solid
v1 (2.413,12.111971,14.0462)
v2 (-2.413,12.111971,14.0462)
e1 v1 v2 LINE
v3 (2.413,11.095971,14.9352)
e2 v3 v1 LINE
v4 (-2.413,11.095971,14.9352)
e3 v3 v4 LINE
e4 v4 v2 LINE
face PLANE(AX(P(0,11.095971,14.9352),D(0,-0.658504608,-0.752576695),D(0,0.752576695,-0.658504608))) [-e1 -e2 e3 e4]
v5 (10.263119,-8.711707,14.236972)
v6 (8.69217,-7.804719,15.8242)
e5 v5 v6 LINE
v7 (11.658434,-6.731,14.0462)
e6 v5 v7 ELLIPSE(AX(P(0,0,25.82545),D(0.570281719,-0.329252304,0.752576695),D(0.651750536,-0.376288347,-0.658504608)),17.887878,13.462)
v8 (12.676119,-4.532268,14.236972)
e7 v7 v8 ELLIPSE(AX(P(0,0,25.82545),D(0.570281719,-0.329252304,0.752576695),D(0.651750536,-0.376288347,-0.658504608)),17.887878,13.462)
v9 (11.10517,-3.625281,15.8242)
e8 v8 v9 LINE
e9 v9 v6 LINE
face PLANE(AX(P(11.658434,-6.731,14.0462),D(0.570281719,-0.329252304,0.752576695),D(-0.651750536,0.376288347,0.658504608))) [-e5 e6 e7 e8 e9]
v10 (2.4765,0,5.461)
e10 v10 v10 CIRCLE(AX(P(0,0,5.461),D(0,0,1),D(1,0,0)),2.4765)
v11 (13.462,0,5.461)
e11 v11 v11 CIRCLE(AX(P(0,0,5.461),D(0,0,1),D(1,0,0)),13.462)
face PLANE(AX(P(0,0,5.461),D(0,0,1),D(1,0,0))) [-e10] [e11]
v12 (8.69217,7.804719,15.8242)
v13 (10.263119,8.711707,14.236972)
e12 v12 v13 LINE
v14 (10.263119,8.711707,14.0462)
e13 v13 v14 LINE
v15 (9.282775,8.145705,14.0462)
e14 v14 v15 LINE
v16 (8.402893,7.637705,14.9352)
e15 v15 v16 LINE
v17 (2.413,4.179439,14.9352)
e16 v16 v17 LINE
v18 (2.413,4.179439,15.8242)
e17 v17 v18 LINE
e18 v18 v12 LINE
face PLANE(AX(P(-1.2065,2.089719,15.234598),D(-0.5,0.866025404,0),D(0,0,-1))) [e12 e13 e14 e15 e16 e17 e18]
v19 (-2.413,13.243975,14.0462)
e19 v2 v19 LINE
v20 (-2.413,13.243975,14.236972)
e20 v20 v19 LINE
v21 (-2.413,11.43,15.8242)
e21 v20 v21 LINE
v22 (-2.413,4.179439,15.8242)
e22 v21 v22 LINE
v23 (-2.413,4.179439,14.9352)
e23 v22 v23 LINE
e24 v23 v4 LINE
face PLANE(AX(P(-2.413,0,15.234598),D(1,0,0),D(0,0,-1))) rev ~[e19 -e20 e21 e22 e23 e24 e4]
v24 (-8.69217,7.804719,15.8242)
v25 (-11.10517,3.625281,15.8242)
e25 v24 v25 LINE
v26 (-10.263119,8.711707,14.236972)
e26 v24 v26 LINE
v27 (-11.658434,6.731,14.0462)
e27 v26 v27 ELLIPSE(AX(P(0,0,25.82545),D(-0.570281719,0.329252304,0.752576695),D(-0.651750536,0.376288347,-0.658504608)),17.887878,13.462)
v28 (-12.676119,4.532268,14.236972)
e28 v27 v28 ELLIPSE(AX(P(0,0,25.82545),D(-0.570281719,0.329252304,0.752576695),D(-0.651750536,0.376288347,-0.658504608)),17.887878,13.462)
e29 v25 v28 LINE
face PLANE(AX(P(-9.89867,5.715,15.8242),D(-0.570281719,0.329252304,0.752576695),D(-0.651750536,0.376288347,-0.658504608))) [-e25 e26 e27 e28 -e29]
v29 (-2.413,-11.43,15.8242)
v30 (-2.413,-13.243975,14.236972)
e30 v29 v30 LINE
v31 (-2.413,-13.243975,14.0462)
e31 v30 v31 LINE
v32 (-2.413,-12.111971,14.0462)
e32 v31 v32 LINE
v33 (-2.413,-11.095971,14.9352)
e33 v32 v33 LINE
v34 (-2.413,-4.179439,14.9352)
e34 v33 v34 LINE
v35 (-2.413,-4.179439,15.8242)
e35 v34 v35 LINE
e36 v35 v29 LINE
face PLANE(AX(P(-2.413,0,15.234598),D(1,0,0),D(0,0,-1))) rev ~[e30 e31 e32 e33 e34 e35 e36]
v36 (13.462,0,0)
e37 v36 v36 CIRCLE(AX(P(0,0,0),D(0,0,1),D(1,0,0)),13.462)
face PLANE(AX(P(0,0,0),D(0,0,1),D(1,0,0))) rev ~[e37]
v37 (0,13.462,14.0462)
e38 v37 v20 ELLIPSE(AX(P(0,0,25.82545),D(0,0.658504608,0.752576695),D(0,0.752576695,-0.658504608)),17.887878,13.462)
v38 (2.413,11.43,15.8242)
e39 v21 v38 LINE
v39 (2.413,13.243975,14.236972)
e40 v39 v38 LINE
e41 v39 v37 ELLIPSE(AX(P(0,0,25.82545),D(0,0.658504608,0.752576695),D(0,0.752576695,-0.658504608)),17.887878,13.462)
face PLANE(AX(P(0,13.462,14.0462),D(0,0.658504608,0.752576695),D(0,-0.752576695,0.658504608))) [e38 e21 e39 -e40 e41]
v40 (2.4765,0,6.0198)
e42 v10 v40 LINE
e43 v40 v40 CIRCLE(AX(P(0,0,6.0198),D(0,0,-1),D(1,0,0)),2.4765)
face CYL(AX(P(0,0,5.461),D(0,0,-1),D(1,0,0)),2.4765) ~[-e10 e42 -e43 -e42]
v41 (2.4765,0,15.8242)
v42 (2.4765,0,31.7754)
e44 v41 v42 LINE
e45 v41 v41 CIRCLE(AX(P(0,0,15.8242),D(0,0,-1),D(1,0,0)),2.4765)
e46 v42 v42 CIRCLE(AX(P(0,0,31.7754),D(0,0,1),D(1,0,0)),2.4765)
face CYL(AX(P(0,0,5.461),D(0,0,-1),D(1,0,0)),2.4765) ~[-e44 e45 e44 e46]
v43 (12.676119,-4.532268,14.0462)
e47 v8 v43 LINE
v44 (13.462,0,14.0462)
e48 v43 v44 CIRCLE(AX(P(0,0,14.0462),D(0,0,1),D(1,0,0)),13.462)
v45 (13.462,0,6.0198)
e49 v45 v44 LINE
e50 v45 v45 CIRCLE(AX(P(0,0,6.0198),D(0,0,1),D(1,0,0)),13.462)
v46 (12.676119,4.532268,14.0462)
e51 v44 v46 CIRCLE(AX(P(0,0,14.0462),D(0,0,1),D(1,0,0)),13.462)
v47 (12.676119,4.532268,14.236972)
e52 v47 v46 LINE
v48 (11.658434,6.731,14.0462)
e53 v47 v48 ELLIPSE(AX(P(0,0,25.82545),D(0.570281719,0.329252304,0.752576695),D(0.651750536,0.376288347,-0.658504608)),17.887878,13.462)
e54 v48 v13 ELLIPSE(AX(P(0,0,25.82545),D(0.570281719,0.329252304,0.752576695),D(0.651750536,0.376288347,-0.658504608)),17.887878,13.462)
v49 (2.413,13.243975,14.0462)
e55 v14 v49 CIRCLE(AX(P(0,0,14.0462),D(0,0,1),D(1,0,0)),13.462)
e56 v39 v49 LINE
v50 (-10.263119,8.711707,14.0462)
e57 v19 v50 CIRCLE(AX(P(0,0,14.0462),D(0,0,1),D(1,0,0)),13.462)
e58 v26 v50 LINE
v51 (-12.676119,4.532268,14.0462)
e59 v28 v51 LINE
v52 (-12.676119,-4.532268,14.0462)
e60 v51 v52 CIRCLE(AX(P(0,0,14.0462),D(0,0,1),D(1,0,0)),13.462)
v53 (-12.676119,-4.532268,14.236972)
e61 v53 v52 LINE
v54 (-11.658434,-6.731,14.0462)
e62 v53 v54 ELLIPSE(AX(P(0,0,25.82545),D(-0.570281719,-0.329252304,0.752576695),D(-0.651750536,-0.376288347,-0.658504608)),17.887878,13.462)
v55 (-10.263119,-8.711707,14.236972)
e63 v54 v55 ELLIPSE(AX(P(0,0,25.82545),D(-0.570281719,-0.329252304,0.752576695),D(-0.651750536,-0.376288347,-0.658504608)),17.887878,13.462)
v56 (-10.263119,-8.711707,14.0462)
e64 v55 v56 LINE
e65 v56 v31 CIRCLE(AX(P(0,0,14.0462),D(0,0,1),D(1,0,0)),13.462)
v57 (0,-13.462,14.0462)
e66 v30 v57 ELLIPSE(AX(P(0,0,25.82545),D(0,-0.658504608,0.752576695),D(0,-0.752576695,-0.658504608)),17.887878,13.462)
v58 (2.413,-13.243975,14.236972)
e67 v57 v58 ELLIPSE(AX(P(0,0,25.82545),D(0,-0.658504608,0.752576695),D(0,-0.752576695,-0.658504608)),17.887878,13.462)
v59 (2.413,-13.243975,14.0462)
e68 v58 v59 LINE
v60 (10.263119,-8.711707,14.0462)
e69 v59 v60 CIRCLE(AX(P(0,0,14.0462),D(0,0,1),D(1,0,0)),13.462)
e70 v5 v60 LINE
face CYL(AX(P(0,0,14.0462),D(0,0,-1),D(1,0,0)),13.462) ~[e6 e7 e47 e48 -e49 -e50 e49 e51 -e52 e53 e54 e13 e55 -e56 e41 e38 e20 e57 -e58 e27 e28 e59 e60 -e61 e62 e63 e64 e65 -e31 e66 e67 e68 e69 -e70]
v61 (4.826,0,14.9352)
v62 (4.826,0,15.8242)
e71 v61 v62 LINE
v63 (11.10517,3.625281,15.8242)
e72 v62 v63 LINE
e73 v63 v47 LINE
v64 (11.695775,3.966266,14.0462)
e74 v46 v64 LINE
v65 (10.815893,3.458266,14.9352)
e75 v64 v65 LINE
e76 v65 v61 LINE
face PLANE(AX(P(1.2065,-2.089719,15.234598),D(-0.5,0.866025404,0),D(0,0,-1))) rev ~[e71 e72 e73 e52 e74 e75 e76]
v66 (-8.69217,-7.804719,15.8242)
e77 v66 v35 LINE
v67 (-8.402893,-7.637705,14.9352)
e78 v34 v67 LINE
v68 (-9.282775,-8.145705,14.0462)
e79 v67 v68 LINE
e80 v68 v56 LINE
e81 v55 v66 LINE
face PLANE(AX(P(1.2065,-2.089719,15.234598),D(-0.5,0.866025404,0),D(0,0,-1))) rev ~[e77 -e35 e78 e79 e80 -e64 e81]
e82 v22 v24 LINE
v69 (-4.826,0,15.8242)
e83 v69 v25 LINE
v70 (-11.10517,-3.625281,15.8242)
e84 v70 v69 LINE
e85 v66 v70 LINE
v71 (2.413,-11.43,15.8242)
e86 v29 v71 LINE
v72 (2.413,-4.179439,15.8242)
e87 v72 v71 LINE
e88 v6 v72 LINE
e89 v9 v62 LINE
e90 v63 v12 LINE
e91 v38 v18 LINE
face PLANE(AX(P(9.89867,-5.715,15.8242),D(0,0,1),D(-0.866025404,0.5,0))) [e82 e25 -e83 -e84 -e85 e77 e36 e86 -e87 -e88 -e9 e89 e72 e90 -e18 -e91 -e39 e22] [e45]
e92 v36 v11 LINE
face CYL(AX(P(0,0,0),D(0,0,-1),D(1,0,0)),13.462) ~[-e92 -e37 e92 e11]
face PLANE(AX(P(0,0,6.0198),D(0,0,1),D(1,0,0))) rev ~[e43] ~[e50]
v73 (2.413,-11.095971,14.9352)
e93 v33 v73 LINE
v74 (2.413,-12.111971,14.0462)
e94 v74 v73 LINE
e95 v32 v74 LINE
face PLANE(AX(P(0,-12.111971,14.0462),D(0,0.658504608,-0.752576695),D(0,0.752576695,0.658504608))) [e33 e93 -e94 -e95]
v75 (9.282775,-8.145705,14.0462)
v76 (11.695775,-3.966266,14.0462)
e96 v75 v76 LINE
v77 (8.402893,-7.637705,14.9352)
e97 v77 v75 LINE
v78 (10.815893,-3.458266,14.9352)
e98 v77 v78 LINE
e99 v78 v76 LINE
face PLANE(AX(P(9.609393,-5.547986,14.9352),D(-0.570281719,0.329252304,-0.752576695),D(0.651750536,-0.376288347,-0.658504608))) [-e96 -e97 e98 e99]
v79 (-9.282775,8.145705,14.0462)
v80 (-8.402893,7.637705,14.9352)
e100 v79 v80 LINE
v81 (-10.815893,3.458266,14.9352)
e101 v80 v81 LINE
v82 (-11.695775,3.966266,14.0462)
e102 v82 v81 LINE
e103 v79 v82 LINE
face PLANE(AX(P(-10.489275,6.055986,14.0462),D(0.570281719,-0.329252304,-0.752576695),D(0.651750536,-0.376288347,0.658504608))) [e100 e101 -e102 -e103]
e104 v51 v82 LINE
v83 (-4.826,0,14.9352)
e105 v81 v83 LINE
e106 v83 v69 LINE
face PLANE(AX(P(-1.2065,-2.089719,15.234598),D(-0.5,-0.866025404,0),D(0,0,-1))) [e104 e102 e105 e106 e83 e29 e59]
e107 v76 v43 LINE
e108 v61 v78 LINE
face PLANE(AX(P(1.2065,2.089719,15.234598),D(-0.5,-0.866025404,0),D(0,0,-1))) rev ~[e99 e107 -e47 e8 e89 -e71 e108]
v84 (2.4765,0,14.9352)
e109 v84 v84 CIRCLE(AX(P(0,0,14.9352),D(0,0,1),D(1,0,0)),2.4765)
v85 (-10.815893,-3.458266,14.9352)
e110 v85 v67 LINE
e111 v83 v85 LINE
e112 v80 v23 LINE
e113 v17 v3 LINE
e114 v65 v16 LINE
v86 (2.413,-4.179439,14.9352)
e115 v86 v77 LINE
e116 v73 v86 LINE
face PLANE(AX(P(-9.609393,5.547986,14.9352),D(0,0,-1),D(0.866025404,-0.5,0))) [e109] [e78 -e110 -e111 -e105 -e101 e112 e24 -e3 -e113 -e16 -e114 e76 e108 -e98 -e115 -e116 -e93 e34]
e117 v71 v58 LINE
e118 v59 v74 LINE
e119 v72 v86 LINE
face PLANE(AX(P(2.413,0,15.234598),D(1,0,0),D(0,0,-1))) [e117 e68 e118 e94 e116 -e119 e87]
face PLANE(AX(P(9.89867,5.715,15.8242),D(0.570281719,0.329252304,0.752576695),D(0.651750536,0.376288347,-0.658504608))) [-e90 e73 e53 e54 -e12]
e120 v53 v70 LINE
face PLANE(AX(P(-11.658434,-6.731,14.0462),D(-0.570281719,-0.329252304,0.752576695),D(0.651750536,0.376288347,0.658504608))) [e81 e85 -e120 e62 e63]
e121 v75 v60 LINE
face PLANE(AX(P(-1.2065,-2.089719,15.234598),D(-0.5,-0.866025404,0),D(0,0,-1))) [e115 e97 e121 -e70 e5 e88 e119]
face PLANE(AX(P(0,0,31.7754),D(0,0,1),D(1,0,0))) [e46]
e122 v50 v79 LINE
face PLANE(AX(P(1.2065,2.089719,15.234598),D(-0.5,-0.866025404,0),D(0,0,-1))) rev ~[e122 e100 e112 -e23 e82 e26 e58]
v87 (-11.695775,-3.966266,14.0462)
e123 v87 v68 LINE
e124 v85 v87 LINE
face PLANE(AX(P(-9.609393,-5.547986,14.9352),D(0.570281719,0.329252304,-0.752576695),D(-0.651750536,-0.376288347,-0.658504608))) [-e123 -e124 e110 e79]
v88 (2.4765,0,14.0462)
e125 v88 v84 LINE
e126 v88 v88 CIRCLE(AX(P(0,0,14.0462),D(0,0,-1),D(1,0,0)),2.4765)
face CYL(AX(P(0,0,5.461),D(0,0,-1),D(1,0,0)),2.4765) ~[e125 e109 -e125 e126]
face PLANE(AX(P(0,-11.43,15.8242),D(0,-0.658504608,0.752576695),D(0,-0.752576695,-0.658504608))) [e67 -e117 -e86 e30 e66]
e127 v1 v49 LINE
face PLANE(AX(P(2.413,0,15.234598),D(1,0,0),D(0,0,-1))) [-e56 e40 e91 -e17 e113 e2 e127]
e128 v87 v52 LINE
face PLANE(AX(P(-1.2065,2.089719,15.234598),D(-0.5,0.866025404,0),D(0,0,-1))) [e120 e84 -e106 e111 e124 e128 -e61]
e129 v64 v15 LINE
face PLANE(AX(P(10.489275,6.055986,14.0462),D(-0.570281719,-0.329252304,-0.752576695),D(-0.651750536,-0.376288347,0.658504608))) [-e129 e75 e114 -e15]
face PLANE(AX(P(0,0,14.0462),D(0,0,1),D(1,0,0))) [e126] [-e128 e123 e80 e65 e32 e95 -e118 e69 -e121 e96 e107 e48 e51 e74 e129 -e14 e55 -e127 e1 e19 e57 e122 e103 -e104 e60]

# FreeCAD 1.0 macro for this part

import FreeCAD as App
import Part
import Sketcher
from FreeCAD import Vector
Q = App.Units.Quantity


def add_polygon(sketch, points):
    """Adds a closed chain of lines whose ends are joined by coincident constraints."""
    first, n = sketch.GeometryCount, len(points)
    for a, b in zip(points, points[1:] + points[:1]):
        sketch.addGeometry(Part.LineSegment(App.Vector(*a, 0), App.Vector(*b, 0)), False)
    for i in range(n):
        sketch.addConstraint(Sketcher.Constraint("Coincident", first + i, 2, first + (i + 1) % n, 1))

doc = App.newDocument("Part")
params = doc.addObject("Spreadsheet::Sheet", "Params")
for row, (alias, value) in enumerate([
    ("sketch1_diameter", "1.06 in"),
    ("pad1_length", "0.215 in"),
    ("sketch2_diameter", "0.195 in"),
    ("pad2_length", "1.036 in"),
    ("sketch3_diameter", "1.06 in"),
    ("pad3_length", "0.316 in"),
    ("sketch4_width", "0.9 in"),
    ("pad4_length", "0.19 in"),
    ("sketch5_diameter", "1.06 in"),
    ("pocket1_length", "0.190772 mm"),
], start=1):
    params.set(f"A{row}", alias)
    params.set(f"B{row}", "=" + value)
    params.setAlias(f"B{row}", alias)

body = doc.addObject("PartDesign::Body", "Body")

sketch1 = doc.addObject("Sketcher::SketchObject", "Sketch")
body.addObject(sketch1)
sketch1.AttachmentSupport = (doc.XY_Plane, [""])
sketch1.MapMode = "FlatFace"
sketch1.addGeometry(Part.Circle(Vector(0, 0, 0), Vector(0, 0, 1), 13.462), False)
sketch1.addConstraint([
    Sketcher.Constraint("Coincident", 0, 3, -1, 1),
    Sketcher.Constraint("Diameter", 0, Q("1.06 in")),
])
sketch1.setExpression("Constraints[1]", "Params.sketch1_diameter")
pad1 = doc.addObject("PartDesign::Pad", "Pad")
body.addObject(pad1)
pad1.Profile = sketch1
pad1.setExpression("Length", "Params.pad1_length")

sketch2 = doc.addObject("Sketcher::SketchObject", "Sketch001")
body.addObject(sketch2)
sketch2.AttachmentSupport = (doc.XY_Plane, [""])
sketch2.MapMode = "FlatFace"
sketch2.AttachmentOffset = App.Placement(Vector(0, 0, 0.215 * 25.4), App.Rotation())
sketch2.addGeometry(Part.Circle(Vector(0, 0, 0), Vector(0, 0, 1), 2.4765), False)
sketch2.addConstraint([
    Sketcher.Constraint("Coincident", 0, 3, -1, 1),
    Sketcher.Constraint("Diameter", 0, Q("0.195 in")),
])
sketch2.setExpression("Constraints[1]", "Params.sketch2_diameter")
pad2 = doc.addObject("PartDesign::Pad", "Pad001")
body.addObject(pad2)
pad2.Profile = sketch2
pad2.setExpression("Length", "Params.pad2_length")

sketch3 = doc.addObject("Sketcher::SketchObject", "Sketch002")
body.addObject(sketch3)
sketch3.AttachmentSupport = (doc.XY_Plane, [""])
sketch3.MapMode = "FlatFace"
sketch3.AttachmentOffset = App.Placement(Vector(0, 0, 0.237 * 25.4), App.Rotation())
sketch3.addGeometry(Part.Circle(Vector(0, 0, 0), Vector(0, 0, 1), 13.462), False)
sketch3.addConstraint([
    Sketcher.Constraint("Coincident", 0, 3, -1, 1),
    Sketcher.Constraint("Diameter", 0, Q("1.06 in")),
])
sketch3.setExpression("Constraints[1]", "Params.sketch3_diameter")
pad3 = doc.addObject("PartDesign::Pad", "Pad002")
body.addObject(pad3)
pad3.Profile = sketch3
pad3.setExpression("Length", "Params.pad3_length")

sketch4 = doc.addObject("Sketcher::SketchObject", "Sketch003")
body.addObject(sketch4)
sketch4.AttachmentSupport = (doc.YZ_Plane, [""])
sketch4.MapMode = "FlatFace"
add_polygon(sketch4, [(13.462, 14.0462), (11.43, 15.8242), (-11.43, 15.8242), (-13.462, 14.0462), (-12.111971, 14.0462), (-11.095971, 14.9352), (11.095971, 14.9352), (12.111971, 14.0462)])
sketch4.addConstraint([
    Sketcher.Constraint("Horizontal", 1),
    Sketcher.Constraint("Horizontal", 3),
    Sketcher.Constraint("Horizontal", 5),
    Sketcher.Constraint("Horizontal", 7),
    Sketcher.Constraint("Symmetric", 3, 2, 6, 2, -2),
    Sketcher.Constraint("Parallel", 2, 4),
    Sketcher.Constraint("Parallel", 0, 6),
    Sketcher.Constraint("Equal", 3, 7),
    Sketcher.Constraint("Equal", 0, 2),
    Sketcher.Constraint("DistanceX", 1, 2, 1, 1, Q("0.9 in")),
    Sketcher.Constraint("DistanceX", 2, 2, -1, 1, Q("0.53 in")),
    Sketcher.Constraint("DistanceY", 2, 2, 1, 2, Q("0.07 in")),
    Sketcher.Constraint("DistanceX", 3, 2, 4, 2, Q("0.04 in")),
    Sketcher.Constraint("DistanceY", -1, 1, 0, 2, Q("0.623 in")),
    Sketcher.Constraint("DistanceX", 3, 1, 3, 2, Q("1.350029 mm")),
])
sketch4.setExpression("Constraints[17]", "Params.sketch4_width")
pad4 = doc.addObject("PartDesign::Pad", "Pad003")
body.addObject(pad4)
pad4.Profile = sketch4
pad4.setExpression("Length", "Params.pad4_length")
pad4.Midplane = True
doc.recompute()

polarpattern = doc.addObject("PartDesign::PolarPattern", "PolarPattern")
body.addObject(polarpattern)
polarpattern.Originals = [pad4]
polarpattern.Axis = (doc.Z_Axis, [""])
polarpattern.Angle = 360
polarpattern.Occurrences = 3
body.Tip = polarpattern

sketch5 = doc.addObject("Sketcher::SketchObject", "Sketch004")
body.addObject(sketch5)
sketch5.AttachmentSupport = (doc.XY_Plane, [""])
sketch5.MapMode = "FlatFace"
sketch5.AttachmentOffset = App.Placement(Vector(0, 0, 0.553 * 25.4), App.Rotation())
sketch5.addGeometry([
    Part.Circle(Vector(0, 0, 0), Vector(0, 0, 1), 15.790131),
    Part.Circle(Vector(0, 0, 0), Vector(0, 0, 1), 13.462),
], False)
sketch5.addConstraint([
    Sketcher.Constraint("Coincident", 0, 3, -1, 1),
    Sketcher.Constraint("Coincident", 1, 3, -1, 1),
    Sketcher.Constraint("Diameter", 1, Q("1.06 in")),
    Sketcher.Constraint("Diameter", 0, Q("31.580262 mm")),
])
sketch5.setExpression("Constraints[2]", "Params.sketch5_diameter")
pocket1 = doc.addObject("PartDesign::Pocket", "Pocket")
body.addObject(pocket1)
pocket1.Profile = sketch5
pocket1.setExpression("Length", "Params.pocket1_length")
pocket1.Reversed = True

doc.recompute()
